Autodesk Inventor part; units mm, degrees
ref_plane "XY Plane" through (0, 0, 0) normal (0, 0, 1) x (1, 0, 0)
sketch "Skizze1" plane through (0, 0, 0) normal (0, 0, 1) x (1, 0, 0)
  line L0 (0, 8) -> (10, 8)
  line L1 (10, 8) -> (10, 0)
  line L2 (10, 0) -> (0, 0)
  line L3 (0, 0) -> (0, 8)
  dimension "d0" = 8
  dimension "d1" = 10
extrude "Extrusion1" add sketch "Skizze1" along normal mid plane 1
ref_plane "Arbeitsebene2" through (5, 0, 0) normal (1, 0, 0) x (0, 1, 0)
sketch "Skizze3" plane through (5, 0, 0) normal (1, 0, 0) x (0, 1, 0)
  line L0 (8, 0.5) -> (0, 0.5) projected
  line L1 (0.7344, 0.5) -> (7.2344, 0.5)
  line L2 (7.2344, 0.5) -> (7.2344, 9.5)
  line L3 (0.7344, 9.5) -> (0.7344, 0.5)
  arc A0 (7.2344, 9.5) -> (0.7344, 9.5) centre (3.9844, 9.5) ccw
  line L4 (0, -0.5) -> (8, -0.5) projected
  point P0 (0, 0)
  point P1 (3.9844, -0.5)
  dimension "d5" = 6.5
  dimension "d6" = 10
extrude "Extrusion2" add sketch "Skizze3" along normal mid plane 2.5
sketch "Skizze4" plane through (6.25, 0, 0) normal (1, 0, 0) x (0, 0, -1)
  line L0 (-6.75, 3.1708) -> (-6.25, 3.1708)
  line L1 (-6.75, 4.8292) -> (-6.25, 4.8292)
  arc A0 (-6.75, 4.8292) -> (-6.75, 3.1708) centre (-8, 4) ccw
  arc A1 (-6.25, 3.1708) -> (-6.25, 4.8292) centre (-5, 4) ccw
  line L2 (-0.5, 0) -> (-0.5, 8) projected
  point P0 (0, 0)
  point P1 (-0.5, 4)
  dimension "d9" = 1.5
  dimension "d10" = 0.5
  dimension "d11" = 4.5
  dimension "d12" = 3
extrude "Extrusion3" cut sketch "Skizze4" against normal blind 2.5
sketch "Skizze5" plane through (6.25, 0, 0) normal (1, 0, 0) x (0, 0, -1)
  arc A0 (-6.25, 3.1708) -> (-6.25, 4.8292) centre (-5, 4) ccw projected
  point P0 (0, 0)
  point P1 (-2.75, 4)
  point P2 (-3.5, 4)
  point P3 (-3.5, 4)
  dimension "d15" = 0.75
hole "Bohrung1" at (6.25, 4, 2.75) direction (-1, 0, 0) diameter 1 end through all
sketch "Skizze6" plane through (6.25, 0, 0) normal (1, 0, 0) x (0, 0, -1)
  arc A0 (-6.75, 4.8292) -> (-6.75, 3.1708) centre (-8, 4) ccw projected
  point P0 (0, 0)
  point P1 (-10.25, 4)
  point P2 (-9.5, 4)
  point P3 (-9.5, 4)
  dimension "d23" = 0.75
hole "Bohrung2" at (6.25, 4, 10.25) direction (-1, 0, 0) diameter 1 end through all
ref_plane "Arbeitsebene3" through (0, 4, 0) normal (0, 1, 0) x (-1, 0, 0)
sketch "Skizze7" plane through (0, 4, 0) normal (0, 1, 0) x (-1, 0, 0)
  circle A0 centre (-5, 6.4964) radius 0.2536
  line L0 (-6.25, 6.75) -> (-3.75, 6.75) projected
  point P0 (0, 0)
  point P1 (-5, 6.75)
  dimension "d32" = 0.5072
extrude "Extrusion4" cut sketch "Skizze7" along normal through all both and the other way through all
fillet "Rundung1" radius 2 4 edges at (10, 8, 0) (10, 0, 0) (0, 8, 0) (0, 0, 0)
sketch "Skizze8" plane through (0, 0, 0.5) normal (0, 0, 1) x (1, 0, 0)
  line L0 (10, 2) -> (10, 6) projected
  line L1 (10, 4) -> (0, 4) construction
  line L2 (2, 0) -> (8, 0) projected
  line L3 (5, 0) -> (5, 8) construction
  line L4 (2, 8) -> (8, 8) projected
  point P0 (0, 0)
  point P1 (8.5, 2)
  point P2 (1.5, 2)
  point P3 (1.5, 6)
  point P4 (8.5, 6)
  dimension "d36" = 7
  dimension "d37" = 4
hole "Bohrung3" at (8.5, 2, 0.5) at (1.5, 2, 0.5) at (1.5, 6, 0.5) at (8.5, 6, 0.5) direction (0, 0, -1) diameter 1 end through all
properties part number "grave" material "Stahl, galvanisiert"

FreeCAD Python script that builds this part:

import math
import FreeCAD as App
import Part
import Sketcher


def edges_at(feature, points):
    """Names of the edges that pass closest to the given points."""
    edges = feature.Shape.Edges
    near = lambda p: min(range(len(edges)), key=lambda i: edges[i].distToShape(Part.Vertex(*p))[0])
    return sorted({f"Edge{near(p) + 1}" for p in points})

doc = App.newDocument("Part")
body = doc.addObject("PartDesign::Body", "Body")

# Sketch on XY plane
sketch1 = body.newObject("Sketcher::SketchObject", "Sketch")
sketch1.AttachmentSupport = (doc.getObject("XY_Plane"), [""])
sketch1.MapMode = "FlatFace"
sketch1.addGeometry([
    Part.LineSegment(App.Vector(10, 8, 0), App.Vector(0, 8, 0)),
    Part.LineSegment(App.Vector(0, 8, 0), App.Vector(0, 0, 0)),
    Part.LineSegment(App.Vector(0, 0, 0), App.Vector(10, 0, 0)),
    Part.LineSegment(App.Vector(10, 0, 0), App.Vector(10, 8, 0)),
], False)
sketch1.addConstraint([
    Sketcher.Constraint("Coincident", 0, 2, 1, 1),
    Sketcher.Constraint("Coincident", 1, 2, 2, 1),
    Sketcher.Constraint("Coincident", 2, 2, 3, 1),
    Sketcher.Constraint("Coincident", 3, 2, 0, 1),
    Sketcher.Constraint("Horizontal", 0),
    Sketcher.Constraint("Vertical", 1),
    Sketcher.Constraint("Horizontal", 2),
    Sketcher.Constraint("Vertical", 3),
    Sketcher.Constraint("Coincident", 1, 2, -1, 1),
    Sketcher.Constraint("DistanceX", 0, 2, 0, 1, 10.0),
    Sketcher.Constraint("DistanceY", 1, 2, 1, 1, 8.0),
])
pad1 = body.newObject("PartDesign::Pad", "Pad")
pad1.Profile = sketch1
pad1.Length = 1
pad1.Midplane = True

# Sketch on YZ plane
sketch2 = body.newObject("Sketcher::SketchObject", "Sketch001")
sketch2.AttachmentSupport = (doc.getObject("YZ_Plane"), [""])
sketch2.MapMode = "FlatFace"
sketch2.AttachmentOffset = App.Placement(App.Vector(0, 0, 5), App.Rotation())
sketch2.addGeometry([
    Part.LineSegment(App.Vector(0.7, 0.5, 0), App.Vector(7.2, 0.5, 0)),
    Part.LineSegment(App.Vector(7.2, 0.5, 0), App.Vector(7.2, 9.5, 0)),
    Part.ArcOfCircle(Part.Circle(App.Vector(4, 9.5, 0), App.Vector(0, 0, 1), 3.2), math.radians(0), math.radians(180)),
    Part.LineSegment(App.Vector(0.7, 9.5, 0), App.Vector(0.7, 0.5, 0)),
], False)
sketch2.addConstraint([
    Sketcher.Constraint("Coincident", 0, 2, 1, 1),
    Sketcher.Constraint("Tangent", 1, 2, 2, 1),
    Sketcher.Constraint("Tangent", 2, 2, 3, 1),
    Sketcher.Constraint("Coincident", 3, 2, 0, 1),
    Sketcher.Constraint("Horizontal", 0),
    Sketcher.Constraint("Vertical", 1),
    Sketcher.Constraint("Vertical", 3),
    Sketcher.Constraint("Radius", 2, 3.25),
    Sketcher.Constraint("DistanceY", 1, 1, 1, 2, 9.0),
    Sketcher.Constraint("DistanceY", -1, 1, 2, 3, 9.5),
    Sketcher.Constraint("DistanceX", -1, 1, 2, 3, 3.9844),
])
pad2 = body.newObject("PartDesign::Pad", "Pad001")
pad2.Profile = sketch2
pad2.Length = 2.5
pad2.Midplane = True

# Sketch on YZ plane
sketch3 = body.newObject("Sketcher::SketchObject", "Sketch002")
sketch3.AttachmentSupport = (doc.getObject("YZ_Plane"), [""])
sketch3.MapMode = "FlatFace"
sketch3.AttachmentOffset = App.Placement(App.Vector(0, 0, 6.25), App.Rotation())
sketch3.addGeometry([
    Part.ArcOfCircle(Part.Circle(App.Vector(4, 8, 0), App.Vector(0, 0, 1), 1.5), math.radians(-56), math.radians(236)),
    Part.LineSegment(App.Vector(3.2, 6.8, 0), App.Vector(3.2, 6.2, 0)),
    Part.ArcOfCircle(Part.Circle(App.Vector(4, 5, 0), App.Vector(0, 0, 1), 1.5), math.radians(124), math.radians(416)),
    Part.LineSegment(App.Vector(4.8, 6.2, 0), App.Vector(4.8, 6.8, 0)),
], False)
sketch3.addConstraint([
    Sketcher.Constraint("Coincident", 0, 2, 1, 1),
    Sketcher.Constraint("Coincident", 1, 2, 2, 1),
    Sketcher.Constraint("Coincident", 2, 2, 3, 1),
    Sketcher.Constraint("Coincident", 3, 2, 0, 1),
    Sketcher.Constraint("Vertical", 1),
    Sketcher.Constraint("Vertical", 3),
    Sketcher.Constraint("Equal", 0, 2),
    Sketcher.Constraint("Horizontal", 1, 2, 2, 2),
    Sketcher.Constraint("Horizontal", 0, 2, 3, 2),
    Sketcher.Constraint("Radius", 0, 1.5),
    Sketcher.Constraint("DistanceY", 1, 2, 1, 1, 0.5),
    Sketcher.Constraint("DistanceY", 2, 3, 0, 3, 3.0),
    Sketcher.Constraint("DistanceX", -1, 1, 0, 3, 4.0),
    Sketcher.Constraint("DistanceY", -1, 1, 0, 3, 8.0),
])
pocket1 = body.newObject("PartDesign::Pocket", "Pocket")
pocket1.Profile = sketch3
pocket1.Length = 2.5

# Sketch on YZ plane
sketch4 = body.newObject("Sketcher::SketchObject", "Sketch003")
sketch4.AttachmentSupport = (doc.getObject("YZ_Plane"), [""])
sketch4.MapMode = "FlatFace"
sketch4.AttachmentOffset = App.Placement(App.Vector(0, 0, 6.25), App.Rotation())
sketch4.addGeometry(Part.Circle(App.Vector(4, 2.8, 0), App.Vector(0, 0, 1), 0.5), False)
sketch4.addConstraint([
    Sketcher.Constraint("Diameter", 0, 1.0),
    Sketcher.Constraint("DistanceX", -1, 1, 0, 3, 4.0),
    Sketcher.Constraint("DistanceY", -1, 1, 0, 3, 2.75),
])
doc.recompute()
hole = body.newObject("PartDesign::Hole", "Hole")
hole.Profile = sketch4
hole.ThreadType = "None"
hole.Diameter = 1
hole.DepthType = "ThroughAll"

# Sketch on YZ plane
sketch5 = body.newObject("Sketcher::SketchObject", "Sketch004")
sketch5.AttachmentSupport = (doc.getObject("YZ_Plane"), [""])
sketch5.MapMode = "FlatFace"
sketch5.AttachmentOffset = App.Placement(App.Vector(0, 0, 6.25), App.Rotation())
sketch5.addGeometry(Part.Circle(App.Vector(4, 10.2, 0), App.Vector(0, 0, 1), 0.5), False)
sketch5.addConstraint([
    Sketcher.Constraint("Diameter", 0, 1.0),
    Sketcher.Constraint("DistanceX", -1, 1, 0, 3, 4.0),
    Sketcher.Constraint("DistanceY", -1, 1, 0, 3, 10.25),
])
doc.recompute()
hole2 = body.newObject("PartDesign::Hole", "Hole001")
hole2.Profile = sketch5
hole2.ThreadType = "None"
hole2.Diameter = 1
hole2.DepthType = "ThroughAll"

# Sketch on XZ plane
sketch6 = body.newObject("Sketcher::SketchObject", "Sketch005")
sketch6.AttachmentSupport = (doc.getObject("XZ_Plane"), [""])
sketch6.MapMode = "FlatFace"
sketch6.AttachmentOffset = App.Placement(App.Vector(0, 0, -4), App.Rotation())
sketch6.addGeometry(Part.Circle(App.Vector(5, 6.5, 0), App.Vector(0, 0, 1), 0.25), False)
sketch6.addConstraint([
    Sketcher.Constraint("Diameter", 0, 0.5072),
    Sketcher.Constraint("DistanceX", -1, 1, 0, 3, 5.0),
    Sketcher.Constraint("DistanceY", -1, 1, 0, 3, 6.4964),
])
pocket2 = body.newObject("PartDesign::Pocket", "Pocket001")
pocket2.Profile = sketch6
pocket2.Type = "ThroughAll"
pocket2.Midplane = True
doc.recompute()

fillet = body.newObject("PartDesign::Fillet", "Fillet")
fillet.Base = (pocket2, edges_at(pocket2, [
    (10, 8, 0),
    (10, 0, 0),
    (0, 8, 0),
    (0, 0, 0),
]))
fillet.Radius = 2

# Sketch on XY plane
sketch7 = body.newObject("Sketcher::SketchObject", "Sketch006")
sketch7.AttachmentSupport = (doc.getObject("XY_Plane"), [""])
sketch7.MapMode = "FlatFace"
sketch7.AttachmentOffset = App.Placement(App.Vector(0, 0, 0.5), App.Rotation())
sketch7.addGeometry([
    Part.Circle(App.Vector(8.5, 2, 0), App.Vector(0, 0, 1), 0.5),
    Part.Circle(App.Vector(1.5, 2, 0), App.Vector(0, 0, 1), 0.5),
    Part.Circle(App.Vector(1.5, 6, 0), App.Vector(0, 0, 1), 0.5),
    Part.Circle(App.Vector(8.5, 6, 0), App.Vector(0, 0, 1), 0.5),
], False)
sketch7.addConstraint([
    Sketcher.Constraint("Equal", 0, 1),
    Sketcher.Constraint("Equal", 1, 2),
    Sketcher.Constraint("Equal", 2, 3),
    Sketcher.Constraint("Horizontal", 0, 3, 1, 3),
    Sketcher.Constraint("Horizontal", 2, 3, 3, 3),
    Sketcher.Constraint("Vertical", 1, 3, 2, 3),
    Sketcher.Constraint("Vertical", 0, 3, 3, 3),
    Sketcher.Constraint("Diameter", 0, 1.0),
    Sketcher.Constraint("DistanceY", -1, 1, 0, 3, 2.0),
    Sketcher.Constraint("DistanceY", -1, 1, 2, 3, 6.0),
    Sketcher.Constraint("DistanceX", 1, 3, 0, 3, 7.0),
    Sketcher.Constraint("DistanceX", -1, 1, 0, 3, 8.5),
])
doc.recompute()
hole3 = body.newObject("PartDesign::Hole", "Hole002")
hole3.Profile = sketch7
hole3.ThreadType = "None"
hole3.Diameter = 1
hole3.DepthType = "ThroughAll"

doc.recompute()
